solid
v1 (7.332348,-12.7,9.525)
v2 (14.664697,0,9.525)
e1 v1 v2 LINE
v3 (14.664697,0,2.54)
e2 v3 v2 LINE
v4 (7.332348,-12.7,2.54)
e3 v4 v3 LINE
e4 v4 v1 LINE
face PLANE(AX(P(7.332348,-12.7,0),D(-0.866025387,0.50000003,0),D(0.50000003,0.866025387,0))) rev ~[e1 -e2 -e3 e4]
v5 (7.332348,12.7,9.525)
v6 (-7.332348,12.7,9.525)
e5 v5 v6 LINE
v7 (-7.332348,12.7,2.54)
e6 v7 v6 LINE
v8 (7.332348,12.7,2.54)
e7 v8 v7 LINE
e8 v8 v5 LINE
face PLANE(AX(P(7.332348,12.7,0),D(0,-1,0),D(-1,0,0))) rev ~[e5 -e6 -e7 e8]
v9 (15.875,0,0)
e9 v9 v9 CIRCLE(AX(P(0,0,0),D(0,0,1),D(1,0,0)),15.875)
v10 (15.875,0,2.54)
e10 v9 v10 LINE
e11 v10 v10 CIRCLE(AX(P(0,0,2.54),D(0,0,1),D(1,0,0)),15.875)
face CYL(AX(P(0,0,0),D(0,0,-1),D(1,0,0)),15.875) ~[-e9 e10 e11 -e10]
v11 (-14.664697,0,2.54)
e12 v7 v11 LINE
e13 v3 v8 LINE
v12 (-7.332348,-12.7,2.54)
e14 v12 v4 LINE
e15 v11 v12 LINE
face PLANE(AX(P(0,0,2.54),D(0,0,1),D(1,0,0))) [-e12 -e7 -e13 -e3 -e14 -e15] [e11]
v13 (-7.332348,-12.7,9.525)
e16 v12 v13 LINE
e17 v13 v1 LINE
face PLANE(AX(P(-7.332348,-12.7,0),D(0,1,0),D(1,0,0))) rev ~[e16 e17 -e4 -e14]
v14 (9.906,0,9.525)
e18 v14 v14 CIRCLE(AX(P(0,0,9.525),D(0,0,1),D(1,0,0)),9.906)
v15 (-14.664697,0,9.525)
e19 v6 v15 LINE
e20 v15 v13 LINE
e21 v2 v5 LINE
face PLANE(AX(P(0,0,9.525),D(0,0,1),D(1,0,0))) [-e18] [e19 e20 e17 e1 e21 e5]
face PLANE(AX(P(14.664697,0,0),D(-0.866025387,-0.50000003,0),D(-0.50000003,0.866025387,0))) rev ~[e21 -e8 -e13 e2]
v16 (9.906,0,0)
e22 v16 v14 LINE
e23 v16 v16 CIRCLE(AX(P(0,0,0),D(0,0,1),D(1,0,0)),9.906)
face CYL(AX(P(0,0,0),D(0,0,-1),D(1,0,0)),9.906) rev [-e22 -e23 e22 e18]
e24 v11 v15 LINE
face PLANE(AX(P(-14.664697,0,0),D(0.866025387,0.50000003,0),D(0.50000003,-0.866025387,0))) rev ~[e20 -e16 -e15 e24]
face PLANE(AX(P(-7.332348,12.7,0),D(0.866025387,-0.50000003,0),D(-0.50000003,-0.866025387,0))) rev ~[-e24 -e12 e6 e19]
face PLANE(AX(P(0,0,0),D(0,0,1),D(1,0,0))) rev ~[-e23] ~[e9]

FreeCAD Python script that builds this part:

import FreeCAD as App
import Part
import Sketcher
Q = App.Units.Quantity

doc = App.newDocument("Part")
body = doc.addObject("PartDesign::Body", "Body")

# Sketch on XY plane
sketch1 = body.newObject("Sketcher::SketchObject", "Sketch")
sketch1.AttachmentSupport = (doc.getObject("XY_Plane"), [""])
sketch1.MapMode = "FlatFace"
sketch1.addGeometry([
    Part.LineSegment(App.Vector(7, 13, 0), App.Vector(-7, 13, 0)),  # 0
    Part.LineSegment(App.Vector(-7, 13, 0), App.Vector(-15, 0, 0)),  # 1
    Part.LineSegment(App.Vector(-15, 0, 0), App.Vector(-7, -13, 0)),  # 2
    Part.LineSegment(App.Vector(-7, -13, 0), App.Vector(7, -13, 0)),  # 3
    Part.LineSegment(App.Vector(7, -13, 0), App.Vector(15, 0, 0)),  # 4
    Part.LineSegment(App.Vector(15, 0, 0), App.Vector(7, 13, 0)),  # 5
    Part.Circle(App.Vector(0, 0, 0), App.Vector(0, 0, 1), 10),  # 6
], False)
sketch1.addConstraint([
    Sketcher.Constraint("Coincident", 0, 2, 1, 1),
    Sketcher.Constraint("Coincident", 1, 2, 2, 1),
    Sketcher.Constraint("Coincident", 2, 2, 3, 1),
    Sketcher.Constraint("Coincident", 3, 2, 4, 1),
    Sketcher.Constraint("Coincident", 4, 2, 5, 1),
    Sketcher.Constraint("Coincident", 5, 2, 0, 1),
    Sketcher.Constraint("Horizontal", 0),
    Sketcher.Constraint("Horizontal", 3),
    Sketcher.Constraint("Coincident", 6, 3, -1, 1),
    Sketcher.Constraint("Symmetric", 0, 2, 3, 2, -1, 1),
    Sketcher.Constraint("Symmetric", 1, 2, 4, 2, -1, 1),
    Sketcher.Constraint("PointOnObject", 1, 2, -1),
    Sketcher.Constraint("Parallel", 2, 5),
    Sketcher.Constraint("Vertical", 0, 2, 2, 2),
    Sketcher.Constraint("Diameter", 6, Q("0.78 in")),
    Sketcher.Constraint("Angle", 1, Q("-120.000002 deg")),
    Sketcher.Constraint("DistanceY", 2, 2, 0, 2, Q("1 in")),
    Sketcher.Constraint("DistanceX", 0, 2, 0, 1, Q("14.664696 mm")),
])
pad1 = body.newObject("PartDesign::Pad", "Pad")
pad1.Profile = sketch1
pad1.Length = Q("0.375 in")

# Sketch on XY plane
sketch2 = body.newObject("Sketcher::SketchObject", "Sketch001")
sketch2.AttachmentSupport = (doc.getObject("XY_Plane"), [""])
sketch2.MapMode = "FlatFace"
sketch2.addGeometry([
    Part.Circle(App.Vector(0, 0, 0), App.Vector(0, 0, 1), 16),
    Part.Circle(App.Vector(0, 0, 0), App.Vector(0, 0, 1), 10),
], False)
sketch2.addConstraint([
    Sketcher.Constraint("Coincident", 0, 3, -1, 1),
    Sketcher.Constraint("Coincident", 1, 3, -1, 1),
    Sketcher.Constraint("Diameter", 0, Q("1.25 in")),
    Sketcher.Constraint("Diameter", 1, Q("0.78 in")),
])
pad2 = body.newObject("PartDesign::Pad", "Pad001")
pad2.Profile = sketch2
pad2.Length = Q("0.1 in")

doc.recompute()
